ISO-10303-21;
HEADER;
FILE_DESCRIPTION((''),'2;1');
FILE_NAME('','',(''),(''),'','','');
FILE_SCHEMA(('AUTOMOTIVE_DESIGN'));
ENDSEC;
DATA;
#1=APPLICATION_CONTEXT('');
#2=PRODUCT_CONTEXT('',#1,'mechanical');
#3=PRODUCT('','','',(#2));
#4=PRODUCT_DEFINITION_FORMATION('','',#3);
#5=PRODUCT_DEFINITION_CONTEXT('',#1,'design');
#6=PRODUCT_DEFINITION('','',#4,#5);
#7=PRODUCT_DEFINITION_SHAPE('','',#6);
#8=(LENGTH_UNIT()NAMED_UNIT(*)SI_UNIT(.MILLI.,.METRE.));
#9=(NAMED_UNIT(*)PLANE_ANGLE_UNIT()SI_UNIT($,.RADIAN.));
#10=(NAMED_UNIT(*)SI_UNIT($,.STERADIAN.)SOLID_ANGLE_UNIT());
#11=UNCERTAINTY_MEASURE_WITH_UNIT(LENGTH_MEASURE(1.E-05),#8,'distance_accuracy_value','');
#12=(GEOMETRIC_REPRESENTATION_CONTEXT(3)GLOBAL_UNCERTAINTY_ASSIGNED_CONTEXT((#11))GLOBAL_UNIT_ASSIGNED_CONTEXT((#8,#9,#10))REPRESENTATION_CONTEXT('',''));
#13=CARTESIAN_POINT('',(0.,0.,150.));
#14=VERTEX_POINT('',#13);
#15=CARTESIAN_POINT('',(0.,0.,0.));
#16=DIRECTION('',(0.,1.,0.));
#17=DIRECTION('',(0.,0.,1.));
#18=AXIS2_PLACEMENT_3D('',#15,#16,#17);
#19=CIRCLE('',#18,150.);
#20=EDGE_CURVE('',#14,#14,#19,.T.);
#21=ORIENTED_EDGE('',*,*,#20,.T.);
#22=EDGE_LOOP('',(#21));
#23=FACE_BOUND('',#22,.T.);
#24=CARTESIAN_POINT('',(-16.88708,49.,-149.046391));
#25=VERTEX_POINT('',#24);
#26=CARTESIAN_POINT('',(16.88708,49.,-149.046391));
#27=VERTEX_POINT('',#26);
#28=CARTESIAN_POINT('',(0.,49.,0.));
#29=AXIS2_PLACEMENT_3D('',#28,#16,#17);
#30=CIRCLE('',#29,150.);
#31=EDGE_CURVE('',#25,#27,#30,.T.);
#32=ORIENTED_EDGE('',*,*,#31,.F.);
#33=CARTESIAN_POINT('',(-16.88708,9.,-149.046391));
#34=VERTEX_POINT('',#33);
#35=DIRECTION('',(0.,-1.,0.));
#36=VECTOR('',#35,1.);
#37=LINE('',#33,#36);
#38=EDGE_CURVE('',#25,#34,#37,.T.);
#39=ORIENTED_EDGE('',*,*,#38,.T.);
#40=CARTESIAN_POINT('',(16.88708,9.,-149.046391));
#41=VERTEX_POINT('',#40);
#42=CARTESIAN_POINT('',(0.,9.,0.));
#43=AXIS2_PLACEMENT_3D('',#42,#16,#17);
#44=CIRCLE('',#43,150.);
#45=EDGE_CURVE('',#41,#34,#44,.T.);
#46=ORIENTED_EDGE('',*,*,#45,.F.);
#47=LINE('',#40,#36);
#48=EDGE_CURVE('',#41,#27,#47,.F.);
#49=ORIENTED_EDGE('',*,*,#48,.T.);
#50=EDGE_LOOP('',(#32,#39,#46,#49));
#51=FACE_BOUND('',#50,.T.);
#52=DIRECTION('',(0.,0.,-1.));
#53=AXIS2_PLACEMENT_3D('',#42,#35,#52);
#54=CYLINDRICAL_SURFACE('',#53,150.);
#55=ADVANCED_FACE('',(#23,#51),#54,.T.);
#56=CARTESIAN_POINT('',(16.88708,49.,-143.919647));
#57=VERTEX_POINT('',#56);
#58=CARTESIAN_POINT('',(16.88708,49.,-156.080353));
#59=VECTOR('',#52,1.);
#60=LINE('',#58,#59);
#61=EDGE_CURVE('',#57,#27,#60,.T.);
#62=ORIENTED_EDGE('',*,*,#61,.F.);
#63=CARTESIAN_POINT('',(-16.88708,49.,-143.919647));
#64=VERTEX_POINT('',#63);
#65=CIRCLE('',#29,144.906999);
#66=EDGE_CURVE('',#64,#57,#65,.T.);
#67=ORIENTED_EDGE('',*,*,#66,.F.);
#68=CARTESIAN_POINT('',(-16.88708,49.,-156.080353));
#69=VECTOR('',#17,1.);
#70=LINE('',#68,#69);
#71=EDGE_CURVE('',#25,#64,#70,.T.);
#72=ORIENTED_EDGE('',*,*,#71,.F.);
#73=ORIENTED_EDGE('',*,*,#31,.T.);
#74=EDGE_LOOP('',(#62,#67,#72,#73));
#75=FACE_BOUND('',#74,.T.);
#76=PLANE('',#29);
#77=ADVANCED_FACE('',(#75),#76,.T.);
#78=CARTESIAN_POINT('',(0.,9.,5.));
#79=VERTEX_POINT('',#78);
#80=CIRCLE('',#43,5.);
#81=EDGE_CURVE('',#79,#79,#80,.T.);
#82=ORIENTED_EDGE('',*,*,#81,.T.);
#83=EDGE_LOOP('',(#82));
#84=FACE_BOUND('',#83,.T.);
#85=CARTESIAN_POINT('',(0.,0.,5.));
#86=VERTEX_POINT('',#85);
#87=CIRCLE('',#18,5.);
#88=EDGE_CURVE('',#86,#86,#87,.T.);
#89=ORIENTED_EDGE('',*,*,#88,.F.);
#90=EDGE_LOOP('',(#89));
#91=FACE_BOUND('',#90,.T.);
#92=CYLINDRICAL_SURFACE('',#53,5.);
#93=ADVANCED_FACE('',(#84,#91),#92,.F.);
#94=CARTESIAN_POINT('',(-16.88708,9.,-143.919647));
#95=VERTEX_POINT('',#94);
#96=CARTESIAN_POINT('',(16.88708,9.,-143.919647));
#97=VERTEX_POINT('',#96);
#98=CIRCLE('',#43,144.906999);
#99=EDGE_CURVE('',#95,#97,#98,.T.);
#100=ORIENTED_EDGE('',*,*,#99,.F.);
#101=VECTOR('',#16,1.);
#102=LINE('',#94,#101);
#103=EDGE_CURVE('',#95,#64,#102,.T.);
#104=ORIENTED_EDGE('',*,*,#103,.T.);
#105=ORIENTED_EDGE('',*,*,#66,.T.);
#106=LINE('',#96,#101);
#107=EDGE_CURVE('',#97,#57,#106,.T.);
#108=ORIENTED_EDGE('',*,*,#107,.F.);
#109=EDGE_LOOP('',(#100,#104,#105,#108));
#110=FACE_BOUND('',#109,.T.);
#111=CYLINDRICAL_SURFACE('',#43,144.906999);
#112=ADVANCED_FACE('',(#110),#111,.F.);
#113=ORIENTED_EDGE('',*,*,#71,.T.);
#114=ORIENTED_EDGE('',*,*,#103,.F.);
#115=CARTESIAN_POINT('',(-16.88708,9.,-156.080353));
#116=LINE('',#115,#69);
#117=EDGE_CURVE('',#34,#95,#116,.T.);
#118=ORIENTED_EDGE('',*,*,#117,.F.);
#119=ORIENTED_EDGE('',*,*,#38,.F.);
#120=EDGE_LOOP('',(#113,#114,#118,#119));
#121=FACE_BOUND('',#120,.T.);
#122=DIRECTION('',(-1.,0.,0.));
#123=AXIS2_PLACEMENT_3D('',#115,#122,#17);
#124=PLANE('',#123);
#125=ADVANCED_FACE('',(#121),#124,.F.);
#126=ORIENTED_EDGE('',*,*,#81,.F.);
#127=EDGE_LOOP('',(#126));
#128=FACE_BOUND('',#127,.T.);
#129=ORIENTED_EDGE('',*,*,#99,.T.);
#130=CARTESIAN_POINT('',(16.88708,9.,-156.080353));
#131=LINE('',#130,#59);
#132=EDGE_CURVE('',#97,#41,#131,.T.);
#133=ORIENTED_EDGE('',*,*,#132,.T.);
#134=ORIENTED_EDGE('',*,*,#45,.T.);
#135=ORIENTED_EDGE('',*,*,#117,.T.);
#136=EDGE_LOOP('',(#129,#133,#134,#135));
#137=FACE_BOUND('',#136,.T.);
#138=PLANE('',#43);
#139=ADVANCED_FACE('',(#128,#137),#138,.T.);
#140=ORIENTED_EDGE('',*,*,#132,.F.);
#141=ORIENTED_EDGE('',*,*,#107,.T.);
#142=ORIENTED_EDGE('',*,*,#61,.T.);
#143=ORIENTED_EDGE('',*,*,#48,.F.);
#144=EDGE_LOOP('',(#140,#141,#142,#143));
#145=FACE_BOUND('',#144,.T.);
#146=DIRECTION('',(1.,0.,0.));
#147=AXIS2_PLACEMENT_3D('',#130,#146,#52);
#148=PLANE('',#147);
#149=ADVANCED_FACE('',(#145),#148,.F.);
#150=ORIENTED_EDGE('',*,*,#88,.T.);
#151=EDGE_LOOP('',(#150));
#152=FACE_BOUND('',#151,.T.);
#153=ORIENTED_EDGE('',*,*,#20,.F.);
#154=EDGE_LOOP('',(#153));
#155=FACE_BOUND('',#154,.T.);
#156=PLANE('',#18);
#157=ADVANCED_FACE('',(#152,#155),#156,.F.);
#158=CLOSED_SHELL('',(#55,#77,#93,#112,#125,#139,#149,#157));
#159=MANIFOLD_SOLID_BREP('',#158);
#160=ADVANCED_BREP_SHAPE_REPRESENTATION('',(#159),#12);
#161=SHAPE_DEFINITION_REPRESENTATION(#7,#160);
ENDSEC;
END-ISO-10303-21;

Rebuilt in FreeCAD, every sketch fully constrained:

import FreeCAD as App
import Part
import Sketcher

doc = App.newDocument("Part")
body = doc.addObject("PartDesign::Body", "Body")

# Sketch on XZ plane
sketch1 = body.newObject("Sketcher::SketchObject", "Sketch")
sketch1.AttachmentSupport = (doc.getObject("XZ_Plane"), [""])
sketch1.MapMode = "FlatFace"
sketch1.addGeometry([
    Part.Circle(App.Vector(0, 0, 0), App.Vector(0, 0, 1), 150),
    Part.Circle(App.Vector(0, 0, 0), App.Vector(0, 0, 1), 5),
], False)
sketch1.addConstraint([
    Sketcher.Constraint("Coincident", 0, 3, -1, 1),
    Sketcher.Constraint("Coincident", 1, 3, -1, 1),
    Sketcher.Constraint("Diameter", 0, 300.0),
    Sketcher.Constraint("Diameter", 1, 10.0),
])
pad1 = body.newObject("PartDesign::Pad", "Pad")
pad1.Profile = sketch1
pad1.Length = 9
pad1.Reversed = True

# Sketch on XZ plane
sketch2 = body.newObject("Sketcher::SketchObject", "Sketch001")
sketch2.AttachmentSupport = (doc.getObject("XZ_Plane"), [""])
sketch2.MapMode = "FlatFace"
sketch2.AttachmentOffset = App.Placement(App.Vector(0, 0, -9), App.Rotation())
sketch2.addGeometry(Part.Circle(App.Vector(0, 0, 0), App.Vector(0, 0, 1), 150), False)
sketch2.addConstraint([
    Sketcher.Constraint("Coincident", 0, 3, -1, 1),
    Sketcher.Constraint("Diameter", 0, 300.0),
])
pad2 = body.newObject("PartDesign::Pad", "Pad001")
pad2.Profile = sketch2
pad2.Length = 40
pad2.Reversed = True

# Sketch on XZ plane
sketch3 = body.newObject("Sketcher::SketchObject", "Sketch002")
sketch3.AttachmentSupport = (doc.getObject("XZ_Plane"), [""])
sketch3.MapMode = "FlatFace"
sketch3.AttachmentOffset = App.Placement(App.Vector(0, 0, -49), App.Rotation())
sketch3.addGeometry(Part.Circle(App.Vector(0, 0, 0), App.Vector(0, 0, 1), 144.906999), False)
sketch3.addConstraint([
    Sketcher.Constraint("Coincident", 0, 3, -1, 1),
    Sketcher.Constraint("Diameter", 0, 289.813997),
])
pocket1 = body.newObject("PartDesign::Pocket", "Pocket")
pocket1.Profile = sketch3
pocket1.Length = 40
pocket1.Reversed = True

# Sketch on XZ plane
sketch4 = body.newObject("Sketcher::SketchObject", "Sketch003")
sketch4.AttachmentSupport = (doc.getObject("XZ_Plane"), [""])
sketch4.MapMode = "FlatFace"
sketch4.AttachmentOffset = App.Placement(App.Vector(0, 0, -49), App.Rotation())
sketch4.addGeometry([
    Part.LineSegment(App.Vector(-16.88708, -156.080353, 0), App.Vector(-16.88708, -143.919647, 0)),
    Part.LineSegment(App.Vector(-16.88708, -143.919647, 0), App.Vector(16.88708, -143.919647, 0)),
    Part.LineSegment(App.Vector(16.88708, -143.919647, 0), App.Vector(16.88708, -156.080353, 0)),
    Part.LineSegment(App.Vector(16.88708, -156.080353, 0), App.Vector(-16.88708, -156.080353, 0)),
], False)
sketch4.addConstraint([
    Sketcher.Constraint("Coincident", 0, 2, 1, 1),
    Sketcher.Constraint("Coincident", 1, 2, 2, 1),
    Sketcher.Constraint("Coincident", 2, 2, 3, 1),
    Sketcher.Constraint("Coincident", 3, 2, 0, 1),
    Sketcher.Constraint("Vertical", 0),
    Sketcher.Constraint("Horizontal", 1),
    Sketcher.Constraint("Vertical", 2),
    Sketcher.Constraint("Horizontal", 3),
    Sketcher.Constraint("DistanceX", 1, 1, 1, 2, 33.77416),
    Sketcher.Constraint("DistanceY", 0, 1, 0, 2, 12.160706),
    Sketcher.Constraint("DistanceX", 0, 2, -1, 1, 16.88708),
    Sketcher.Constraint("DistanceY", 0, 2, -1, 1, 143.919647),
])
pocket2 = body.newObject("PartDesign::Pocket", "Pocket001")
pocket2.Profile = sketch4
pocket2.Length = 40
pocket2.Reversed = True

doc.recompute()
